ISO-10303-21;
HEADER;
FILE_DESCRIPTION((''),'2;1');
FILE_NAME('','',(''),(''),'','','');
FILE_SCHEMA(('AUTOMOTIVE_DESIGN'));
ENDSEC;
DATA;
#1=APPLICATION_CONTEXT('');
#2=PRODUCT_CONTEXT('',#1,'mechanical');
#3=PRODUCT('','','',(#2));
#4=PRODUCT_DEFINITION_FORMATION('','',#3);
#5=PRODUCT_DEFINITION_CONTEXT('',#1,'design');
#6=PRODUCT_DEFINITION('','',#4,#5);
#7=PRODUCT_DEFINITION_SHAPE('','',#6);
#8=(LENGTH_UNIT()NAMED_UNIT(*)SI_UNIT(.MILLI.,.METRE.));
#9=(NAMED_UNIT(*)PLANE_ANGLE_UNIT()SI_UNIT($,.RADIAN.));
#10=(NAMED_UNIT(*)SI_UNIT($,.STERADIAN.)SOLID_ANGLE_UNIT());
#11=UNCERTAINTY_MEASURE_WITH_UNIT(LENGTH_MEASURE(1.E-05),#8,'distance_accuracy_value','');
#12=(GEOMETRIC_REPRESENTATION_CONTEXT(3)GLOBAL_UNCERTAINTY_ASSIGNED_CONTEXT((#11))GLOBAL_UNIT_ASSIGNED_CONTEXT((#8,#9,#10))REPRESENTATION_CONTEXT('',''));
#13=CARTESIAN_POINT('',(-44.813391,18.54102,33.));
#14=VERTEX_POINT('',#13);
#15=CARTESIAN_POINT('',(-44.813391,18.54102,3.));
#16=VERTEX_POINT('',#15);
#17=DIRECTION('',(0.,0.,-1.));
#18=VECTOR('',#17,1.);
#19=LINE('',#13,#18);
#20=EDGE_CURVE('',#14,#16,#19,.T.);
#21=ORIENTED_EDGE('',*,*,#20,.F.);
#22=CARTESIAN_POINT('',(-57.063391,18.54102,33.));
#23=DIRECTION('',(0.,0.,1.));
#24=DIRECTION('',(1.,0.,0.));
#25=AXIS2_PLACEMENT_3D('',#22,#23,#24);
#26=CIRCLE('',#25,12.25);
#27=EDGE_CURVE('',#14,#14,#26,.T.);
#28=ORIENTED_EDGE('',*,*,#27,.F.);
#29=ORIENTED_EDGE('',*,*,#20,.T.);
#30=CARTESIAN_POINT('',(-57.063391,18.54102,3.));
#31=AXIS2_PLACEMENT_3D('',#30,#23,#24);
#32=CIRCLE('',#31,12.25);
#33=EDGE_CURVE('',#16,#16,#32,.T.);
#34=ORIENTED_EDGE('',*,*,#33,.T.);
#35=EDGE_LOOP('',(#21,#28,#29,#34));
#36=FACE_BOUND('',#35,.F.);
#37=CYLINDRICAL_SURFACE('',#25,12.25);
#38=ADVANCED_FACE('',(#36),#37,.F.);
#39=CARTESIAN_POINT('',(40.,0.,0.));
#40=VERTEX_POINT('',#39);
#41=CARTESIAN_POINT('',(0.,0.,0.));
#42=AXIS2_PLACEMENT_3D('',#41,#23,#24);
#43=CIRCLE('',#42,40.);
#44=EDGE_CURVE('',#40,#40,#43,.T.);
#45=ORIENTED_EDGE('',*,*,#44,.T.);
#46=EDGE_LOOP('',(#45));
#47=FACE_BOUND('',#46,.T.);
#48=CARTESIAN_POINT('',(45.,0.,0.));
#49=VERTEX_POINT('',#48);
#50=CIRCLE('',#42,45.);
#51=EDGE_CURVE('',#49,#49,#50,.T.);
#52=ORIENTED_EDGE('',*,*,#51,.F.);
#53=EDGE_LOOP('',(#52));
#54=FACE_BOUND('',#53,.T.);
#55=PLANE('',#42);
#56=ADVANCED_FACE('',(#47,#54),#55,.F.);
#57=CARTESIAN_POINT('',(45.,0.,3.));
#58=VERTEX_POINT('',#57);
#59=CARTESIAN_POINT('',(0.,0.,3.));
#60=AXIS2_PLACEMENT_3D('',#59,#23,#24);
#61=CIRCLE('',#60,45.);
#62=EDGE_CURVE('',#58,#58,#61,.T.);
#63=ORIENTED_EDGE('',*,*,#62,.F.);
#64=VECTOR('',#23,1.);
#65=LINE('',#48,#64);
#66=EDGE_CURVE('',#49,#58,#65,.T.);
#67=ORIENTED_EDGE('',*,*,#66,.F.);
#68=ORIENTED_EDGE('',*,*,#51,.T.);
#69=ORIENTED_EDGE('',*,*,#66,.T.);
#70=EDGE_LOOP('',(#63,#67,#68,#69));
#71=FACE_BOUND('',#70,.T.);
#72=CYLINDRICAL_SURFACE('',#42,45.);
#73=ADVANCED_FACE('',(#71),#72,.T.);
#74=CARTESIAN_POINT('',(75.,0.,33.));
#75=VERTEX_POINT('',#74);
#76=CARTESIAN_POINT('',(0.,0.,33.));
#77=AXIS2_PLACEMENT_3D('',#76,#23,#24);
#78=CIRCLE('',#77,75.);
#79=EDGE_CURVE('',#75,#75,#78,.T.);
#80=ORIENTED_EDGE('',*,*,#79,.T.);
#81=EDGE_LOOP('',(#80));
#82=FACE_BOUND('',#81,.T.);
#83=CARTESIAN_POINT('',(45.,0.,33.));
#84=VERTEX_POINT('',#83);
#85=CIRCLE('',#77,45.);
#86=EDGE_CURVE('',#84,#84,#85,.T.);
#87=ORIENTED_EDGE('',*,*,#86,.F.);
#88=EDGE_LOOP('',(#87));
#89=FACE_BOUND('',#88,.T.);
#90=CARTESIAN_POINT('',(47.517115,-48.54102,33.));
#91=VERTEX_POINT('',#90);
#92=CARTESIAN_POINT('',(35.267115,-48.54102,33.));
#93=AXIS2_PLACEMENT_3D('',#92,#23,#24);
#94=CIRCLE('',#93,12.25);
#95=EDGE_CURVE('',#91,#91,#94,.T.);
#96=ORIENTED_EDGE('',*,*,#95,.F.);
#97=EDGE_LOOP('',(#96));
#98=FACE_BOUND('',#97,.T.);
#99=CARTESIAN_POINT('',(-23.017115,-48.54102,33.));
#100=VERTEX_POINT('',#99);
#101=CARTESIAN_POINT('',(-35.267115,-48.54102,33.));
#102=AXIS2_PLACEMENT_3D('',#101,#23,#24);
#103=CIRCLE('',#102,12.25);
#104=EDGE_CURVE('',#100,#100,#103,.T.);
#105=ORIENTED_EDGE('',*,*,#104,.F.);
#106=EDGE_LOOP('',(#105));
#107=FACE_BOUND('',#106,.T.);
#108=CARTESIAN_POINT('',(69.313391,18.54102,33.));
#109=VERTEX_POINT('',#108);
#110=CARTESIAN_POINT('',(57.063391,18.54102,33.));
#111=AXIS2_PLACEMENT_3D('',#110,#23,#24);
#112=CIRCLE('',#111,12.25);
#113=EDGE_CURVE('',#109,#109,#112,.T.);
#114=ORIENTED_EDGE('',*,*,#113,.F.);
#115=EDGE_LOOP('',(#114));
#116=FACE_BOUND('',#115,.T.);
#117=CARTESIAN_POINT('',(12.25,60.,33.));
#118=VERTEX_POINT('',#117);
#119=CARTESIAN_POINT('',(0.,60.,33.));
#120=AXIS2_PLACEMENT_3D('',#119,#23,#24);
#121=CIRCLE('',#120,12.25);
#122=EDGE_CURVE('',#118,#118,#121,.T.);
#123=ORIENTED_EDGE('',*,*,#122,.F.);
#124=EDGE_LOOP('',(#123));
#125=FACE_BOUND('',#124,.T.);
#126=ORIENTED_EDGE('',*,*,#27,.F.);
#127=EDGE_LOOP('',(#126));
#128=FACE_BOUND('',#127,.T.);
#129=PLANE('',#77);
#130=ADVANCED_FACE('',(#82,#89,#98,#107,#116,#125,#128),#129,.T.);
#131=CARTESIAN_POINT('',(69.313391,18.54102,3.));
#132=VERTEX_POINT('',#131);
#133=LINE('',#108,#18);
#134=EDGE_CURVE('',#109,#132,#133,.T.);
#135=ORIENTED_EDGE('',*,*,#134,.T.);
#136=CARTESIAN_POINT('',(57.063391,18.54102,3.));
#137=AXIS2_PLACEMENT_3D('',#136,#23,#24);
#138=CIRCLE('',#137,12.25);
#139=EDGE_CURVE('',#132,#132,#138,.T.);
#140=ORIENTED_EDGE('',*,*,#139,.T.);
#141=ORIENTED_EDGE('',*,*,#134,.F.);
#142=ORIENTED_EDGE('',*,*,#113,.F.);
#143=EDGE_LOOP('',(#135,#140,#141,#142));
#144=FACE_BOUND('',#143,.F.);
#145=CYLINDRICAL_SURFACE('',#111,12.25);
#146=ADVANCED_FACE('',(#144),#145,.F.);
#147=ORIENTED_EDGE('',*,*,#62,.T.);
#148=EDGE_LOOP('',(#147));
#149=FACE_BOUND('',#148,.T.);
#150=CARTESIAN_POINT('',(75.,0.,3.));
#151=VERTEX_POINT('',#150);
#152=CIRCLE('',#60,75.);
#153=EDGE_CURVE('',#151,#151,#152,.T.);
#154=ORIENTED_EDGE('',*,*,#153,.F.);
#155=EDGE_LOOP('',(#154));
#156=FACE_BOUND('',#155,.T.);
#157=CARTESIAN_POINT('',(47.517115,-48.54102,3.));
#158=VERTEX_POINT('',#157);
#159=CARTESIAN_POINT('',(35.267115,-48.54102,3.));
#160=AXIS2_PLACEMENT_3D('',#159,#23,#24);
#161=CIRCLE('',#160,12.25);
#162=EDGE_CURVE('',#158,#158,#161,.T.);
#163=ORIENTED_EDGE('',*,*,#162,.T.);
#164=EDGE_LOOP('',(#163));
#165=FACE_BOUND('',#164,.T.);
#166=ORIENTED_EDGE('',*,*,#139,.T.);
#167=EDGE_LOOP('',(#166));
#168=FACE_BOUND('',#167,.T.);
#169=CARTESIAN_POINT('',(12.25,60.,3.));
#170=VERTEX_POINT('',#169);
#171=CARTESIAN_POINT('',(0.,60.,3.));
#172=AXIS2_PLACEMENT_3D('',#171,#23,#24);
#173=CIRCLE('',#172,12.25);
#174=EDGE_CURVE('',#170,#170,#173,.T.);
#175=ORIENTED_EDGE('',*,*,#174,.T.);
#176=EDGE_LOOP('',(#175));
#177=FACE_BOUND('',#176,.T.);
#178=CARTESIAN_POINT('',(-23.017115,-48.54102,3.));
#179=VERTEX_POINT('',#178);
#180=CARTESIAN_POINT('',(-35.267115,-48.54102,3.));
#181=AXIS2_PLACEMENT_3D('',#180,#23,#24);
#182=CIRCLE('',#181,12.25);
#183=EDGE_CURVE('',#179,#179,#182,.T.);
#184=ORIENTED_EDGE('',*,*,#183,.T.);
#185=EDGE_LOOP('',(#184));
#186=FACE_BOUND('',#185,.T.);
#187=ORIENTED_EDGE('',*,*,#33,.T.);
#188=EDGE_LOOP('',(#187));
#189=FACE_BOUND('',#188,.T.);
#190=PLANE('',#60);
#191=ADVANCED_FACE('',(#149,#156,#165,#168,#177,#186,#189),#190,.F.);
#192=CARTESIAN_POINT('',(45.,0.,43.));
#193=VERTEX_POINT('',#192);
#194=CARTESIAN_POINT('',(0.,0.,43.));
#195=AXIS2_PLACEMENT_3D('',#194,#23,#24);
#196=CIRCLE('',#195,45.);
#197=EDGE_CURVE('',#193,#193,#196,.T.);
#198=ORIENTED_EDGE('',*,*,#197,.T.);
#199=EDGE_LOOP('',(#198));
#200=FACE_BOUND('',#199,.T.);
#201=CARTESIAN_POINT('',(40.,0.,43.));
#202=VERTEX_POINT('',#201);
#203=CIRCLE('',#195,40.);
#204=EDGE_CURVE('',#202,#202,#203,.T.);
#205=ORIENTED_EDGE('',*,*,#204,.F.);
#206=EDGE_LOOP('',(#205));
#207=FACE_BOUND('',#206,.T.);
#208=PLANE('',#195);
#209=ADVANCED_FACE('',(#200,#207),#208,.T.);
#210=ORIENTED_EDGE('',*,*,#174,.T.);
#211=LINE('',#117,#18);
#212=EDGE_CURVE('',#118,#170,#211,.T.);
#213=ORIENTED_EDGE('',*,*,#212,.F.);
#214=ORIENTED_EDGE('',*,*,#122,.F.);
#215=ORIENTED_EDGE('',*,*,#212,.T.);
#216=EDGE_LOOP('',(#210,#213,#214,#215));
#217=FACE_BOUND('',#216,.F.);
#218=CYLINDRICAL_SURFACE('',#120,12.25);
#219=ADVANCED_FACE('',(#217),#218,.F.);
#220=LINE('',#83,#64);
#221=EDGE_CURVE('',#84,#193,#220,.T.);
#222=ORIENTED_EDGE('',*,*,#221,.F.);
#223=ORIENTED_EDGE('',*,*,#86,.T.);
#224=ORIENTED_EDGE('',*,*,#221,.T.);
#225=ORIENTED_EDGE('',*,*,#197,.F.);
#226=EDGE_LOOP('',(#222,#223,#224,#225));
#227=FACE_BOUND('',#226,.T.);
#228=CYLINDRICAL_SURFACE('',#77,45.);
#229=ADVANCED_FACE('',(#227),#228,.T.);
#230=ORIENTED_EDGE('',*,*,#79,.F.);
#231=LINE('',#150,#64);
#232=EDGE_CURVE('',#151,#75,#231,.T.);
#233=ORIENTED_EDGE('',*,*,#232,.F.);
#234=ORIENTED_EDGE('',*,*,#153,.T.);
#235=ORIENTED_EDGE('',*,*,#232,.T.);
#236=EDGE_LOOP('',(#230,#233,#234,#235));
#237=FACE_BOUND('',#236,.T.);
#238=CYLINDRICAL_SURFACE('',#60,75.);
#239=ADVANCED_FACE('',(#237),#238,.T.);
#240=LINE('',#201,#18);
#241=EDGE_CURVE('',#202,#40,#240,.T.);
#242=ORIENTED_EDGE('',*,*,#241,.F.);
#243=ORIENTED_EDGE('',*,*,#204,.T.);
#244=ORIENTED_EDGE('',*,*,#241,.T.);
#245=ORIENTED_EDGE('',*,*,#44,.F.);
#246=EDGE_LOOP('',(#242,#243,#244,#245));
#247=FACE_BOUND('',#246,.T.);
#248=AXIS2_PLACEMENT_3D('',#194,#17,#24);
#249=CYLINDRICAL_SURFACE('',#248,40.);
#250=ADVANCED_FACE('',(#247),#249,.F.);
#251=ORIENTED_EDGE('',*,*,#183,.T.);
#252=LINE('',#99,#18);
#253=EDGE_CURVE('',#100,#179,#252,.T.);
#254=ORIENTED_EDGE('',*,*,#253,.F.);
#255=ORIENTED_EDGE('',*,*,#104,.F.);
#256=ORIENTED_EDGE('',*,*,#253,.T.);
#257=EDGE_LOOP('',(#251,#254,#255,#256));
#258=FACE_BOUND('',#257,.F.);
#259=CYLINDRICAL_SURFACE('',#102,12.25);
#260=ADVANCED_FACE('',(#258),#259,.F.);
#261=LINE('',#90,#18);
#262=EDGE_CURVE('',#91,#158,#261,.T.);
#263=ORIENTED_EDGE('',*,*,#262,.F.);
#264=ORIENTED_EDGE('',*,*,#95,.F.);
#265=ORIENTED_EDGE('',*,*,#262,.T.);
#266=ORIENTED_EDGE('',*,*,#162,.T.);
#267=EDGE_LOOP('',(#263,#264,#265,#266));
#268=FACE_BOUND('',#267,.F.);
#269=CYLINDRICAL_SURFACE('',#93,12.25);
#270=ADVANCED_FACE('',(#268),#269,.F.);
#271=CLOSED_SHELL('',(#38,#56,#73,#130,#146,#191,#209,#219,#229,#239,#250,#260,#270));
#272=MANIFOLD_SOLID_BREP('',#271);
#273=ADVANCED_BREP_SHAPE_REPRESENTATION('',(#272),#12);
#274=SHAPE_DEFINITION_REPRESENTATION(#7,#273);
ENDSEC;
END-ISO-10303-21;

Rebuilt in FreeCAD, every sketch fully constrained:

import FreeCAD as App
import Part
import Sketcher

V = App.Vector

doc = App.newDocument("Part")
params = doc.addObject("Spreadsheet::Sheet", "Params")
for row, (alias, value) in enumerate([
    ("sketch1_width", "5 mm"),
    ("sketch1_width2", "30 mm"),
    ("sketch1_height", "43 mm"),
    ("sketch1_height2", "3 mm"),
    ("revolution_angle", "360 deg"),
    ("sketch2_diameter", "24.5 mm"),
], start=1):
    params.set(f"A{row}", alias)
    params.set(f"B{row}", "=" + value)
    params.setAlias(f"B{row}", alias)

body = doc.addObject("PartDesign::Body", "Body")

sketch1 = body.newObject("Sketcher::SketchObject", "Sketch")
sketch1.AttachmentSupport = (doc.getObject("XZ_Plane"), [""])
sketch1.MapMode = "FlatFace"
sketch1.addGeometry([
    Part.LineSegment(V(40, 43, 0), V(40, 0, 0)),
    Part.LineSegment(V(40, 0, 0), V(45, 0, 0)),
    Part.LineSegment(V(45, 0, 0), V(45, 3, 0)),
    Part.LineSegment(V(45, 3, 0), V(75, 3, 0)),
    Part.LineSegment(V(75, 3, 0), V(75, 33, 0)),
    Part.LineSegment(V(75, 33, 0), V(45, 33, 0)),
    Part.LineSegment(V(45, 33, 0), V(45, 43, 0)),
    Part.LineSegment(V(45, 43, 0), V(40, 43, 0)),
], False)
sketch1.addConstraint([
    Sketcher.Constraint("Coincident", 0, 2, 1, 1),
    Sketcher.Constraint("Coincident", 1, 2, 2, 1),
    Sketcher.Constraint("Coincident", 2, 2, 3, 1),
    Sketcher.Constraint("Coincident", 3, 2, 4, 1),
    Sketcher.Constraint("Coincident", 4, 2, 5, 1),
    Sketcher.Constraint("Coincident", 5, 2, 6, 1),
    Sketcher.Constraint("Coincident", 6, 2, 7, 1),
    Sketcher.Constraint("Coincident", 7, 2, 0, 1),
    Sketcher.Constraint("Vertical", 0),
    Sketcher.Constraint("Horizontal", 1),
    Sketcher.Constraint("Vertical", 2),
    Sketcher.Constraint("Horizontal", 3),
    Sketcher.Constraint("Vertical", 4),
    Sketcher.Constraint("Horizontal", 5),
    Sketcher.Constraint("Vertical", 6),
    Sketcher.Constraint("Horizontal", 7),
    Sketcher.Constraint("PointOnObject", 0, 2, -1),
    Sketcher.Constraint("Vertical", 2, 2, 5, 2),
    Sketcher.Constraint("Equal", 5, 4),
    Sketcher.Constraint("DistanceX", 1, 1, 1, 2, 5.0),
    Sketcher.Constraint("DistanceX", 3, 1, 3, 2, 30.0),
    Sketcher.Constraint("DistanceY", 0, 2, 0, 1, 43.0),
    Sketcher.Constraint("DistanceY", 2, 1, 2, 2, 3.0),
    Sketcher.Constraint("DistanceX", -1, 1, 0, 2, 40.0),
])
sketch1.setExpression("Constraints[19]", "Params.sketch1_width")
sketch1.setExpression("Constraints[20]", "Params.sketch1_width2")
sketch1.setExpression("Constraints[21]", "Params.sketch1_height")
sketch1.setExpression("Constraints[22]", "Params.sketch1_height2")
revolution = body.newObject("PartDesign::Revolution", "Revolution")
revolution.Profile = sketch1
revolution.ReferenceAxis = (sketch1, ["V_Axis"])
revolution.setExpression("Angle", "Params.revolution_angle")

sketch2 = body.newObject("Sketcher::SketchObject", "Sketch001")
sketch2.AttachmentSupport = (doc.getObject("XY_Plane"), [""])
sketch2.MapMode = "FlatFace"
sketch2.AttachmentOffset = App.Placement(V(0, 0, 33), App.Rotation())
sketch2.addGeometry([
    Part.Circle(V(0, 60, 0), V(0, 0, 1), 12.25),
    Part.Circle(V(-57.063391, 18.54102, 0), V(0, 0, 1), 12.25),
    Part.Circle(V(-35.267115, -48.54102, 0), V(0, 0, 1), 12.25),
    Part.Circle(V(35.267115, -48.54102, 0), V(0, 0, 1), 12.25),
    Part.Circle(V(57.063391, 18.54102, 0), V(0, 0, 1), 12.25),
], False)
sketch2.addConstraint([
    Sketcher.Constraint("Equal", 0, 1),
    Sketcher.Constraint("Equal", 1, 2),
    Sketcher.Constraint("Equal", 2, 3),
    Sketcher.Constraint("Equal", 3, 4),
    Sketcher.Constraint("Symmetric", 2, 3, 3, 3, -2),
    Sketcher.Constraint("Symmetric", 1, 3, 4, 3, -2),
    Sketcher.Constraint("PointOnObject", 0, 3, -2),
    Sketcher.Constraint("Diameter", 0, 24.5),
    Sketcher.Constraint("DistanceY", -1, 1, 0, 3, 60.0),
    Sketcher.Constraint("DistanceX", 1, 3, -1, 1, 57.063391),
    Sketcher.Constraint("DistanceY", -1, 1, 1, 3, 18.54102),
    Sketcher.Constraint("DistanceY", 2, 3, -1, 1, 48.54102),
    Sketcher.Constraint("DistanceX", 2, 3, 3, 3, 70.53423),
])
sketch2.setExpression("Constraints[7]", "Params.sketch2_diameter")
pocket1 = body.newObject("PartDesign::Pocket", "Pocket")
pocket1.Profile = sketch2
pocket1.Type = "ThroughAll"

doc.recompute()
